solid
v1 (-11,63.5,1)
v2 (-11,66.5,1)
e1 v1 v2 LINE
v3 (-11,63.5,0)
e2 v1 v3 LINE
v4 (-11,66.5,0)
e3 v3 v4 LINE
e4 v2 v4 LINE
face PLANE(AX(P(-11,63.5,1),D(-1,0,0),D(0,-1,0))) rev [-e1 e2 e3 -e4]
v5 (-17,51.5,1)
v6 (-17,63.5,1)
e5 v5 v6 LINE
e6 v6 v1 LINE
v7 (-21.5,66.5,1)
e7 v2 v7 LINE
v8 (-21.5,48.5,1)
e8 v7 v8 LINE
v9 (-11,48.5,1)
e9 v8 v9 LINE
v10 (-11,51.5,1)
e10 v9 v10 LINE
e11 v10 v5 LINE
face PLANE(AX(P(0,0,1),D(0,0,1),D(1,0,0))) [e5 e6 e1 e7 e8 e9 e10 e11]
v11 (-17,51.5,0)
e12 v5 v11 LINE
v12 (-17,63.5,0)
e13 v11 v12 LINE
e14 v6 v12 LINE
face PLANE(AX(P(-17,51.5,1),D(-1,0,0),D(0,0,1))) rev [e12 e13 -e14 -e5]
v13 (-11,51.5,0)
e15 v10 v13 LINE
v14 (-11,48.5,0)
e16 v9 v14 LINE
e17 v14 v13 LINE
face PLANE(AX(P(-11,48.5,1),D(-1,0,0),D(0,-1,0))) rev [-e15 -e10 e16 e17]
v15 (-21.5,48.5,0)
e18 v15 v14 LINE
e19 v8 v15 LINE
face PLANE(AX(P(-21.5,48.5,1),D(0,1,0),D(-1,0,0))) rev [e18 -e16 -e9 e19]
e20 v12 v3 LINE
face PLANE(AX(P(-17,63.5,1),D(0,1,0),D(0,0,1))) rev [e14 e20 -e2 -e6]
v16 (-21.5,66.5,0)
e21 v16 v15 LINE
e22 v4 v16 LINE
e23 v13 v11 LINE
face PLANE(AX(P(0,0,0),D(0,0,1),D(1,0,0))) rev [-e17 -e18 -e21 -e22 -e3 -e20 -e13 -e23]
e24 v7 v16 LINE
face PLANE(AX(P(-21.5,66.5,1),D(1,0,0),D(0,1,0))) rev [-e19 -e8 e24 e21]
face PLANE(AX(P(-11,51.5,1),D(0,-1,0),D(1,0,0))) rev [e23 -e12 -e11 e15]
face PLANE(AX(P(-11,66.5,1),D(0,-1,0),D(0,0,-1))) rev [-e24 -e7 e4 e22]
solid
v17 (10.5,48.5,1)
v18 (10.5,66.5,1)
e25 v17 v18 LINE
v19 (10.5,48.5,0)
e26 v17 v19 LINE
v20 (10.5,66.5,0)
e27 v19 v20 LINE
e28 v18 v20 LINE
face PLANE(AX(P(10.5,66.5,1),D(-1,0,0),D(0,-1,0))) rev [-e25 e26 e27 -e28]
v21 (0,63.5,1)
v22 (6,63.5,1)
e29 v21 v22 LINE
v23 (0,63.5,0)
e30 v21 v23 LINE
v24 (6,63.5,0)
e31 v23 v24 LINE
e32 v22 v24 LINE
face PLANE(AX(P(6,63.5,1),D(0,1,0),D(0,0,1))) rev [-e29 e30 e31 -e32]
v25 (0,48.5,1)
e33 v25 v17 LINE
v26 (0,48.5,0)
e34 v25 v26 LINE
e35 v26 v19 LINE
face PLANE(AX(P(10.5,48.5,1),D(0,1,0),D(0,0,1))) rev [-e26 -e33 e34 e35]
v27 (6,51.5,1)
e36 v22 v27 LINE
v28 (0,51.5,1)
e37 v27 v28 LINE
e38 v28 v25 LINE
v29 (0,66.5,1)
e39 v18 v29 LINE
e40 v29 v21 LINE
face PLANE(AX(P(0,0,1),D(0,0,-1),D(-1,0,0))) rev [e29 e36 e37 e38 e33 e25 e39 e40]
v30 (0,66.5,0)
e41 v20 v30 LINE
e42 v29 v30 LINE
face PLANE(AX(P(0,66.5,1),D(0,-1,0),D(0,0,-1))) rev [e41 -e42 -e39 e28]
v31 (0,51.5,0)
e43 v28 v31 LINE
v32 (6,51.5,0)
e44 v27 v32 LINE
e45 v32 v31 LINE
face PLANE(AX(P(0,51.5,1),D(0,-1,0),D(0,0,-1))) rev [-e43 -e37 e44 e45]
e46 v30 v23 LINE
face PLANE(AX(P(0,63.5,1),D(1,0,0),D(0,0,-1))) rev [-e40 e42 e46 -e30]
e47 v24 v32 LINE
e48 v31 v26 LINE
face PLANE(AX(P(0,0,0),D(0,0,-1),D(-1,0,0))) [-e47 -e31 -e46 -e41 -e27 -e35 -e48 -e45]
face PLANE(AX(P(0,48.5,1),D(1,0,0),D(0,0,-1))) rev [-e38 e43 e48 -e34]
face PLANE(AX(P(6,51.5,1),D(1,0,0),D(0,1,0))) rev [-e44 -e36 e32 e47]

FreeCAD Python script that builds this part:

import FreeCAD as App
import Part
import Sketcher
from FreeCAD import Vector
Q = App.Units.Quantity

doc = App.newDocument("Part")
body = doc.addObject("PartDesign::Body", "Body")

# Sketch on XY plane
sketch1 = body.newObject("Sketcher::SketchObject", "Sketch")
sketch1.AttachmentSupport = (doc.getObject("XY_Plane"), [""])
sketch1.MapMode = "FlatFace"
sketch1.addGeometry([
    Part.LineSegment(Vector(10.5, 66.5, 0), Vector(0, 66.5, 0)),  # 0
    Part.LineSegment(Vector(0, 66.5, 0), Vector(0, 63.5, 0)),  # 1
    Part.LineSegment(Vector(0, 63.5, 0), Vector(6, 63.5, 0)),  # 2
    Part.LineSegment(Vector(6, 63.5, 0), Vector(6, 51.5, 0)),  # 3
    Part.LineSegment(Vector(6, 51.5, 0), Vector(0, 51.5, 0)),  # 4
    Part.LineSegment(Vector(0, 51.5, 0), Vector(0, 48.5, 0)),  # 5
    Part.LineSegment(Vector(0, 48.5, 0), Vector(10.5, 48.5, 0)),  # 6
    Part.LineSegment(Vector(10.5, 48.5, 0), Vector(10.5, 66.5, 0)),  # 7
], False)
sketch1.addConstraint([
    Sketcher.Constraint("Coincident", 0, 2, 1, 1),
    Sketcher.Constraint("Coincident", 1, 2, 2, 1),
    Sketcher.Constraint("Coincident", 2, 2, 3, 1),
    Sketcher.Constraint("Coincident", 3, 2, 4, 1),
    Sketcher.Constraint("Coincident", 4, 2, 5, 1),
    Sketcher.Constraint("Coincident", 5, 2, 6, 1),
    Sketcher.Constraint("Coincident", 6, 2, 7, 1),
    Sketcher.Constraint("Coincident", 7, 2, 0, 1),
    Sketcher.Constraint("Horizontal", 0),
    Sketcher.Constraint("Vertical", 1),
    Sketcher.Constraint("Horizontal", 2),
    Sketcher.Constraint("Vertical", 3),
    Sketcher.Constraint("Horizontal", 4),
    Sketcher.Constraint("Vertical", 5),
    Sketcher.Constraint("Horizontal", 6),
    Sketcher.Constraint("Vertical", 7),
    Sketcher.Constraint("PointOnObject", 0, 2, -2),
    Sketcher.Constraint("PointOnObject", 4, 2, -2),
    Sketcher.Constraint("Equal", 1, 5),
    Sketcher.Constraint("DistanceX", 2, 1, 2, 2, Q("6 mm")),
    Sketcher.Constraint("DistanceY", 1, 2, 1, 1, Q("3 mm")),
    Sketcher.Constraint("DistanceY", 3, 2, 3, 1, Q("12 mm")),
    Sketcher.Constraint("DistanceX", 0, 2, 0, 1, Q("10.5 mm")),
    Sketcher.Constraint("DistanceY", -1, 1, 0, 2, Q("66.5 mm")),
])
pad1 = body.newObject("PartDesign::Pad", "Pad")
pad1.Profile = sketch1
pad1.Length = 1
body2 = doc.addObject("PartDesign::Body", "Body001")

# Sketch on XY plane
sketch2 = body2.newObject("Sketcher::SketchObject", "Sketch001")
sketch2.AttachmentSupport = (doc.getObject("XY_Plane001"), [""])
sketch2.MapMode = "FlatFace"
sketch2.addGeometry([
    Part.LineSegment(Vector(-11, 66.5, 0), Vector(-21.5, 66.5, 0)),  # 0
    Part.LineSegment(Vector(-21.5, 66.5, 0), Vector(-21.5, 48.5, 0)),  # 1
    Part.LineSegment(Vector(-21.5, 48.5, 0), Vector(-11, 48.5, 0)),  # 2
    Part.LineSegment(Vector(-11, 48.5, 0), Vector(-11, 51.5, 0)),  # 3
    Part.LineSegment(Vector(-11, 51.5, 0), Vector(-17, 51.5, 0)),  # 4
    Part.LineSegment(Vector(-17, 51.5, 0), Vector(-17, 63.5, 0)),  # 5
    Part.LineSegment(Vector(-17, 63.5, 0), Vector(-11, 63.5, 0)),  # 6
    Part.LineSegment(Vector(-11, 63.5, 0), Vector(-11, 66.5, 0)),  # 7
], False)
sketch2.addConstraint([
    Sketcher.Constraint("Coincident", 0, 2, 1, 1),
    Sketcher.Constraint("Coincident", 1, 2, 2, 1),
    Sketcher.Constraint("Coincident", 2, 2, 3, 1),
    Sketcher.Constraint("Coincident", 3, 2, 4, 1),
    Sketcher.Constraint("Coincident", 4, 2, 5, 1),
    Sketcher.Constraint("Coincident", 5, 2, 6, 1),
    Sketcher.Constraint("Coincident", 6, 2, 7, 1),
    Sketcher.Constraint("Coincident", 7, 2, 0, 1),
    Sketcher.Constraint("Horizontal", 0),
    Sketcher.Constraint("Vertical", 1),
    Sketcher.Constraint("Horizontal", 2),
    Sketcher.Constraint("Vertical", 3),
    Sketcher.Constraint("Horizontal", 4),
    Sketcher.Constraint("Vertical", 5),
    Sketcher.Constraint("Horizontal", 6),
    Sketcher.Constraint("Vertical", 7),
    Sketcher.Constraint("Vertical", 3, 2, 6, 2),
    Sketcher.Constraint("Equal", 3, 7),
    Sketcher.Constraint("DistanceX", 4, 2, 4, 1, Q("6 mm")),
    Sketcher.Constraint("DistanceY", 1, 2, 1, 1, Q("18 mm")),
    Sketcher.Constraint("DistanceY", 3, 1, 3, 2, Q("3 mm")),
    Sketcher.Constraint("DistanceX", 0, 2, 0, 1, Q("10.5 mm")),
    Sketcher.Constraint("DistanceX", 2, 2, -1, 1, Q("11 mm")),
    Sketcher.Constraint("DistanceY", -1, 1, 0, 2, Q("66.5 mm")),
])
pad2 = body2.newObject("PartDesign::Pad", "Pad001")
pad2.Profile = sketch2
pad2.Length = 1

doc.recompute()
